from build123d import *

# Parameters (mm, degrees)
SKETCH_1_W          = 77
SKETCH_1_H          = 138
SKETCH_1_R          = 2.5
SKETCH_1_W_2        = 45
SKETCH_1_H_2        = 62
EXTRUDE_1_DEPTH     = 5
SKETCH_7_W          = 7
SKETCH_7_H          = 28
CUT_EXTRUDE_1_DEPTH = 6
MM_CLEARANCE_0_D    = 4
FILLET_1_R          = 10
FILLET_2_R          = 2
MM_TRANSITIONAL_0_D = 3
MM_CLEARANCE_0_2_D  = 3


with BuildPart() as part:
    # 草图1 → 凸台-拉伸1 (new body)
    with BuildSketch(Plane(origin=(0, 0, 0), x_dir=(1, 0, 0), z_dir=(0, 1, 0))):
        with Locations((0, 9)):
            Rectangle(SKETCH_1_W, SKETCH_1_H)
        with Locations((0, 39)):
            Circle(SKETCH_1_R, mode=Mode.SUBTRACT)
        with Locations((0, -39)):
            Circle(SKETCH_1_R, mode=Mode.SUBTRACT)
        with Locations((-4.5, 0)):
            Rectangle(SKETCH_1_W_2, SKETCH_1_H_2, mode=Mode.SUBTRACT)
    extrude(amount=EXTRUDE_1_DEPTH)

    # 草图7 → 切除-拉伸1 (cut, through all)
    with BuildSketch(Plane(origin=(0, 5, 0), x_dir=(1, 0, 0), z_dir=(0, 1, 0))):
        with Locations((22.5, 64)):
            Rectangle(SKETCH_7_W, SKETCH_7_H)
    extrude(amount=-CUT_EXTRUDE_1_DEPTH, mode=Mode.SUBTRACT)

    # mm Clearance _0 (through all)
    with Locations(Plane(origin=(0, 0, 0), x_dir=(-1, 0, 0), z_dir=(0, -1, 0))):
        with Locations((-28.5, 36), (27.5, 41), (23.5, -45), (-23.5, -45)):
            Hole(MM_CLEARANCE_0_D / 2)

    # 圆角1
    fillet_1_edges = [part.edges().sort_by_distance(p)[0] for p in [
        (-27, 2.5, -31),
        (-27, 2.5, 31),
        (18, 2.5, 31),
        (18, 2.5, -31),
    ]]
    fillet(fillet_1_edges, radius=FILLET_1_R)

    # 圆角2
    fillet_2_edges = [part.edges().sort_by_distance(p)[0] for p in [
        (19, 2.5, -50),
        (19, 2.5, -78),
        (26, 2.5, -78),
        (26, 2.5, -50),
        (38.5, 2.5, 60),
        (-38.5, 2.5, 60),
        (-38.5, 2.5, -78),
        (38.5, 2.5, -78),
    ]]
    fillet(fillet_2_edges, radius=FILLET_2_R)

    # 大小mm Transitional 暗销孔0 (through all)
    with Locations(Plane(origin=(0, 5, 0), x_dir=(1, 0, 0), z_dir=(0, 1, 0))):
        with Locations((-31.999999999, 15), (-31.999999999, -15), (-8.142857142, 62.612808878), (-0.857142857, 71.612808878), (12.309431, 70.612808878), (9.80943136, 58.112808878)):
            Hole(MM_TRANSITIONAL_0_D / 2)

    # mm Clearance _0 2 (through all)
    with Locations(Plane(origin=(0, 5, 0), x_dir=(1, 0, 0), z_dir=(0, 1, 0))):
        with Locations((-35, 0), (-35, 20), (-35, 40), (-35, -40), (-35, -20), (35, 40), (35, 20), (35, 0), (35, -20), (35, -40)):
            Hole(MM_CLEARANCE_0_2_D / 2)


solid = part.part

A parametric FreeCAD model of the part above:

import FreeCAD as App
import Part
import Sketcher
Q = App.Units.Quantity


def edges_at(feature, points):
    """Names of the edges that pass closest to the given points."""
    edges = feature.Shape.Edges
    near = lambda p: min(range(len(edges)), key=lambda i: edges[i].distToShape(Part.Vertex(*p))[0])
    return sorted({f"Edge{near(p) + 1}" for p in points})

doc = App.newDocument("Part")
body = doc.addObject("PartDesign::Body", "Body")

sketch1 = body.newObject("Sketcher::SketchObject", "Sketch")
sketch1.AttachmentSupport = (doc.getObject("XZ_Plane"), [""])
sketch1.MapMode = "FlatFace"
sketch1.addGeometry(Part.LineSegment(App.Vector(-38.5, -78, 0), App.Vector(-38.5, 60, 0)), False)
sketch1.addGeometry(Part.LineSegment(App.Vector(-38.5, 60, 0), App.Vector(38.5, 60, 0)), False)
sketch1.addGeometry(Part.LineSegment(App.Vector(38.5, 60, 0), App.Vector(38.5, -78, 0)), False)
sketch1.addGeometry(Part.LineSegment(App.Vector(38.5, -78, 0), App.Vector(-38.5, -78, 0)), False)
sketch1.addGeometry(Part.Circle(App.Vector(0, 39, 0), App.Vector(0, 0, 1), 2.5), False)
sketch1.addGeometry(Part.LineSegment(App.Vector(18, 31, 0), App.Vector(-27, 31, 0)), False)
sketch1.addGeometry(Part.LineSegment(App.Vector(-27, 31, 0), App.Vector(-27, -31, 0)), False)
sketch1.addGeometry(Part.LineSegment(App.Vector(-27, -31, 0), App.Vector(18, -31, 0)), False)
sketch1.addGeometry(Part.LineSegment(App.Vector(18, -31, 0), App.Vector(18, 31, 0)), False)
sketch1.addGeometry(Part.Circle(App.Vector(0, -39, 0), App.Vector(0, 0, 1), 2.5), False)
sketch1.addConstraint(Sketcher.Constraint("Coincident", 0, 2, 1, 1))
sketch1.addConstraint(Sketcher.Constraint("Coincident", 1, 2, 2, 1))
sketch1.addConstraint(Sketcher.Constraint("Coincident", 2, 2, 3, 1))
sketch1.addConstraint(Sketcher.Constraint("Coincident", 3, 2, 0, 1))
sketch1.addConstraint(Sketcher.Constraint("Coincident", 5, 2, 6, 1))
sketch1.addConstraint(Sketcher.Constraint("Coincident", 6, 2, 7, 1))
sketch1.addConstraint(Sketcher.Constraint("Coincident", 7, 2, 8, 1))
sketch1.addConstraint(Sketcher.Constraint("Coincident", 8, 2, 5, 1))
sketch1.addConstraint(Sketcher.Constraint("Vertical", 0))
sketch1.addConstraint(Sketcher.Constraint("Horizontal", 1))
sketch1.addConstraint(Sketcher.Constraint("Vertical", 2))
sketch1.addConstraint(Sketcher.Constraint("Horizontal", 3))
sketch1.addConstraint(Sketcher.Constraint("Horizontal", 5))
sketch1.addConstraint(Sketcher.Constraint("Vertical", 6))
sketch1.addConstraint(Sketcher.Constraint("Horizontal", 7))
sketch1.addConstraint(Sketcher.Constraint("Vertical", 8))
sketch1.addConstraint(Sketcher.Constraint("Equal", 4, 9))
sketch1.addConstraint(Sketcher.Constraint("Symmetric", 4, 3, 9, 3, -1, 1))
sketch1.addConstraint(Sketcher.Constraint("PointOnObject", 4, 3, -2))
sketch1.addConstraint(Sketcher.Constraint("Diameter", 4, Q("5 mm")))
sketch1.addConstraint(Sketcher.Constraint("DistanceX", 1, 1, 1, 2, Q("77 mm")))
sketch1.addConstraint(Sketcher.Constraint("DistanceX", 5, 2, 5, 1, Q("45 mm")))
sketch1.addConstraint(Sketcher.Constraint("DistanceY", 0, 1, 0, 2, Q("138 mm")))
sketch1.addConstraint(Sketcher.Constraint("DistanceY", 6, 2, 6, 1, Q("62 mm")))
sketch1.addConstraint(Sketcher.Constraint("DistanceY", -1, 1, 4, 3, Q("39 mm")))
sketch1.addConstraint(Sketcher.Constraint("DistanceY", -1, 1, 0, 2, Q("60 mm")))
sketch1.addConstraint(Sketcher.Constraint("DistanceX", 5, 2, -1, 1, Q("27 mm")))
sketch1.addConstraint(Sketcher.Constraint("DistanceY", -1, 1, 5, 2, Q("31 mm")))
sketch1.addConstraint(Sketcher.Constraint("DistanceX", 0, 2, -1, 1, Q("38.5 mm")))
pad1 = body.newObject("PartDesign::Pad", "Pad")
pad1.Profile = sketch1
pad1.Length = 5
pad1.Reversed = True

sketch2 = body.newObject("Sketcher::SketchObject", "Sketch001")
sketch2.AttachmentSupport = (doc.getObject("XZ_Plane"), [""])
sketch2.MapMode = "FlatFace"
sketch2.AttachmentOffset = App.Placement(App.Vector(0, 0, -5), App.Rotation())
sketch2.addGeometry(Part.LineSegment(App.Vector(19, -78, 0), App.Vector(19, -50, 0)), False)
sketch2.addGeometry(Part.LineSegment(App.Vector(19, -50, 0), App.Vector(26, -50, 0)), False)
sketch2.addGeometry(Part.LineSegment(App.Vector(26, -50, 0), App.Vector(26, -78, 0)), False)
sketch2.addGeometry(Part.LineSegment(App.Vector(26, -78, 0), App.Vector(19, -78, 0)), False)
sketch2.addConstraint(Sketcher.Constraint("Coincident", 0, 2, 1, 1))
sketch2.addConstraint(Sketcher.Constraint("Coincident", 1, 2, 2, 1))
sketch2.addConstraint(Sketcher.Constraint("Coincident", 2, 2, 3, 1))
sketch2.addConstraint(Sketcher.Constraint("Coincident", 3, 2, 0, 1))
sketch2.addConstraint(Sketcher.Constraint("Vertical", 0))
sketch2.addConstraint(Sketcher.Constraint("Horizontal", 1))
sketch2.addConstraint(Sketcher.Constraint("Vertical", 2))
sketch2.addConstraint(Sketcher.Constraint("Horizontal", 3))
sketch2.addConstraint(Sketcher.Constraint("DistanceX", 1, 1, 1, 2, Q("7 mm")))
sketch2.addConstraint(Sketcher.Constraint("DistanceY", 0, 1, 0, 2, Q("28 mm")))
sketch2.addConstraint(Sketcher.Constraint("DistanceX", -1, 1, 0, 2, Q("19 mm")))
sketch2.addConstraint(Sketcher.Constraint("DistanceY", 0, 2, -1, 1, Q("50 mm")))
pocket1 = body.newObject("PartDesign::Pocket", "Pocket")
pocket1.Profile = sketch2
pocket1.Type = "ThroughAll"
pocket1.Reversed = True

sketch3 = body.newObject("Sketcher::SketchObject", "Sketch002")
sketch3.AttachmentSupport = (doc.getObject("XZ_Plane"), [""])
sketch3.MapMode = "FlatFace"
sketch3.addGeometry(Part.Circle(App.Vector(28.5, -36, 0), App.Vector(0, 0, 1), 2), False)
sketch3.addGeometry(Part.Circle(App.Vector(-27.5, -41, 0), App.Vector(0, 0, 1), 2), False)
sketch3.addGeometry(Part.Circle(App.Vector(-23.5, 45, 0), App.Vector(0, 0, 1), 2), False)
sketch3.addGeometry(Part.Circle(App.Vector(23.5, 45, 0), App.Vector(0, 0, 1), 2), False)
sketch3.addConstraint(Sketcher.Constraint("Equal", 0, 1))
sketch3.addConstraint(Sketcher.Constraint("Equal", 1, 2))
sketch3.addConstraint(Sketcher.Constraint("Equal", 2, 3))
sketch3.addConstraint(Sketcher.Constraint("Symmetric", 2, 3, 3, 3, -2))
sketch3.addConstraint(Sketcher.Constraint("Diameter", 0, Q("4 mm")))
sketch3.addConstraint(Sketcher.Constraint("DistanceY", 0, 3, -1, 1, Q("36 mm")))
sketch3.addConstraint(Sketcher.Constraint("DistanceY", 1, 3, -1, 1, Q("41 mm")))
sketch3.addConstraint(Sketcher.Constraint("DistanceY", -1, 1, 2, 3, Q("45 mm")))
sketch3.addConstraint(Sketcher.Constraint("DistanceX", 1, 3, 0, 3, Q("56 mm")))
sketch3.addConstraint(Sketcher.Constraint("DistanceX", 1, 3, 2, 3, Q("4 mm")))
sketch3.addConstraint(Sketcher.Constraint("DistanceX", 2, 3, 3, 3, Q("47 mm")))
doc.recompute()
hole = body.newObject("PartDesign::Hole", "Hole")
hole.Profile = sketch3
hole.ThreadType = "None"
hole.Diameter = 4
hole.DepthType = "ThroughAll"
doc.recompute()

fillet = body.newObject("PartDesign::Fillet", "Fillet")
fillet.Base = (hole, edges_at(hole, [
    (-27, 2.5, -31),
    (-27, 2.5, 31),
    (18, 2.5, 31),
    (18, 2.5, -31),
]))
fillet.Radius = 10
doc.recompute()

fillet2 = body.newObject("PartDesign::Fillet", "Fillet001")
fillet2.Base = (fillet, edges_at(fillet, [
    (19, 2.5, -50),
    (19, 2.5, -78),
    (26, 2.5, -78),
    (26, 2.5, -50),
    (38.5, 2.5, 60),
    (-38.5, 2.5, 60),
    (-38.5, 2.5, -78),
    (38.5, 2.5, -78),
]))
fillet2.Radius = 2

sketch4 = body.newObject("Sketcher::SketchObject", "Sketch003")
sketch4.AttachmentSupport = (doc.getObject("XZ_Plane"), [""])
sketch4.MapMode = "FlatFace"
sketch4.AttachmentOffset = App.Placement(App.Vector(0, 0, -5), App.Rotation())
sketch4.addGeometry(Part.Circle(App.Vector(-32, -15, 0), App.Vector(0, 0, 1), 1.5), False)
sketch4.addGeometry(Part.Circle(App.Vector(-32, 15, 0), App.Vector(0, 0, 1), 1.5), False)
sketch4.addGeometry(Part.Circle(App.Vector(-8.1, -62.6, 0), App.Vector(0, 0, 1), 1.5), False)
sketch4.addGeometry(Part.Circle(App.Vector(-0.9, -71.6, 0), App.Vector(0, 0, 1), 1.5), False)
sketch4.addGeometry(Part.Circle(App.Vector(12.3, -70.6, 0), App.Vector(0, 0, 1), 1.5), False)
sketch4.addGeometry(Part.Circle(App.Vector(9.8, -58.1, 0), App.Vector(0, 0, 1), 1.5), False)
sketch4.addConstraint(Sketcher.Constraint("Equal", 0, 1))
sketch4.addConstraint(Sketcher.Constraint("Equal", 1, 2))
sketch4.addConstraint(Sketcher.Constraint("Equal", 2, 3))
sketch4.addConstraint(Sketcher.Constraint("Equal", 3, 4))
sketch4.addConstraint(Sketcher.Constraint("Equal", 4, 5))
sketch4.addConstraint(Sketcher.Constraint("Symmetric", 0, 3, 1, 3, -1))
sketch4.addConstraint(Sketcher.Constraint("Diameter", 0, Q("3 mm")))
sketch4.addConstraint(Sketcher.Constraint("DistanceX", 0, 3, -1, 1, Q("32 mm")))
sketch4.addConstraint(Sketcher.Constraint("DistanceY", 0, 3, -1, 1, Q("15 mm")))
sketch4.addConstraint(Sketcher.Constraint("DistanceY", 3, 3, 2, 3, Q("9 mm")))
sketch4.addConstraint(Sketcher.Constraint("DistanceY", 3, 3, 4, 3, Q("1 mm")))
sketch4.addConstraint(Sketcher.Constraint("DistanceX", 5, 3, 4, 3, Q("2.5 mm")))
sketch4.addConstraint(Sketcher.Constraint("DistanceY", 4, 3, 5, 3, Q("12.5 mm")))
sketch4.addConstraint(Sketcher.Constraint("DistanceY", 2, 3, -1, 1, Q("62.612809 mm")))
sketch4.addConstraint(Sketcher.Constraint("DistanceX", -1, 1, 4, 3, Q("12.309431 mm")))
sketch4.addConstraint(Sketcher.Constraint("DistanceX", 2, 3, 4, 3, Q("20.452288 mm")))
sketch4.addConstraint(Sketcher.Constraint("DistanceX", 3, 3, -1, 1, Q("0.857143 mm")))
doc.recompute()
hole2 = body.newObject("PartDesign::Hole", "Hole001")
hole2.Profile = sketch4
hole2.ThreadType = "None"
hole2.Diameter = 3
hole2.DepthType = "ThroughAll"
hole2.Reversed = True

sketch5 = body.newObject("Sketcher::SketchObject", "Sketch004")
sketch5.AttachmentSupport = (doc.getObject("XZ_Plane"), [""])
sketch5.MapMode = "FlatFace"
sketch5.AttachmentOffset = App.Placement(App.Vector(0, 0, -5), App.Rotation())
sketch5.addGeometry(Part.Circle(App.Vector(-35, 0, 0), App.Vector(0, 0, 1), 1.5), False)
sketch5.addGeometry(Part.Circle(App.Vector(-35, -20, 0), App.Vector(0, 0, 1), 1.5), False)
sketch5.addGeometry(Part.Circle(App.Vector(-35, -40, 0), App.Vector(0, 0, 1), 1.5), False)
sketch5.addGeometry(Part.Circle(App.Vector(-35, 40, 0), App.Vector(0, 0, 1), 1.5), False)
sketch5.addGeometry(Part.Circle(App.Vector(-35, 20, 0), App.Vector(0, 0, 1), 1.5), False)
sketch5.addGeometry(Part.Circle(App.Vector(35, -40, 0), App.Vector(0, 0, 1), 1.5), False)
sketch5.addGeometry(Part.Circle(App.Vector(35, -20, 0), App.Vector(0, 0, 1), 1.5), False)
sketch5.addGeometry(Part.Circle(App.Vector(35, 0, 0), App.Vector(0, 0, 1), 1.5), False)
sketch5.addGeometry(Part.Circle(App.Vector(35, 20, 0), App.Vector(0, 0, 1), 1.5), False)
sketch5.addGeometry(Part.Circle(App.Vector(35, 40, 0), App.Vector(0, 0, 1), 1.5), False)
sketch5.addConstraint(Sketcher.Constraint("Equal", 0, 1))
sketch5.addConstraint(Sketcher.Constraint("Equal", 1, 2))
sketch5.addConstraint(Sketcher.Constraint("Equal", 2, 3))
sketch5.addConstraint(Sketcher.Constraint("Equal", 3, 4))
sketch5.addConstraint(Sketcher.Constraint("Equal", 4, 5))
sketch5.addConstraint(Sketcher.Constraint("Equal", 5, 6))
sketch5.addConstraint(Sketcher.Constraint("Equal", 6, 7))
sketch5.addConstraint(Sketcher.Constraint("Equal", 7, 8))
sketch5.addConstraint(Sketcher.Constraint("Equal", 8, 9))
sketch5.addConstraint(Sketcher.Constraint("Symmetric", 3, 3, 5, 3, -1, 1))
sketch5.addConstraint(Sketcher.Constraint("Symmetric", 4, 3, 6, 3, -1, 1))
sketch5.addConstraint(Sketcher.Constraint("Symmetric", 0, 3, 7, 3, -1, 1))
sketch5.addConstraint(Sketcher.Constraint("Symmetric", 1, 3, 8, 3, -1, 1))
sketch5.addConstraint(Sketcher.Constraint("Symmetric", 2, 3, 9, 3, -1, 1))
sketch5.addConstraint(Sketcher.Constraint("Symmetric", 2, 3, 5, 3, -2))
sketch5.addConstraint(Sketcher.Constraint("Symmetric", 1, 3, 6, 3, -2))
sketch5.addConstraint(Sketcher.Constraint("PointOnObject", 0, 3, -1))
sketch5.addConstraint(Sketcher.Constraint("Vertical", 0, 3, 1, 3))
sketch5.addConstraint(Sketcher.Constraint("Vertical", 1, 3, 2, 3))
sketch5.addConstraint(Sketcher.Constraint("Diameter", 0, Q("3 mm")))
sketch5.addConstraint(Sketcher.Constraint("DistanceX", 0, 3, -1, 1, Q("35 mm")))
sketch5.addConstraint(Sketcher.Constraint("DistanceY", 1, 3, -1, 1, Q("20 mm")))
sketch5.addConstraint(Sketcher.Constraint("DistanceY", 2, 3, -1, 1, Q("40 mm")))
doc.recompute()
hole3 = body.newObject("PartDesign::Hole", "Hole002")
hole3.Profile = sketch5
hole3.ThreadType = "None"
hole3.Diameter = 3
hole3.DepthType = "ThroughAll"
hole3.Reversed = True

doc.recompute()
